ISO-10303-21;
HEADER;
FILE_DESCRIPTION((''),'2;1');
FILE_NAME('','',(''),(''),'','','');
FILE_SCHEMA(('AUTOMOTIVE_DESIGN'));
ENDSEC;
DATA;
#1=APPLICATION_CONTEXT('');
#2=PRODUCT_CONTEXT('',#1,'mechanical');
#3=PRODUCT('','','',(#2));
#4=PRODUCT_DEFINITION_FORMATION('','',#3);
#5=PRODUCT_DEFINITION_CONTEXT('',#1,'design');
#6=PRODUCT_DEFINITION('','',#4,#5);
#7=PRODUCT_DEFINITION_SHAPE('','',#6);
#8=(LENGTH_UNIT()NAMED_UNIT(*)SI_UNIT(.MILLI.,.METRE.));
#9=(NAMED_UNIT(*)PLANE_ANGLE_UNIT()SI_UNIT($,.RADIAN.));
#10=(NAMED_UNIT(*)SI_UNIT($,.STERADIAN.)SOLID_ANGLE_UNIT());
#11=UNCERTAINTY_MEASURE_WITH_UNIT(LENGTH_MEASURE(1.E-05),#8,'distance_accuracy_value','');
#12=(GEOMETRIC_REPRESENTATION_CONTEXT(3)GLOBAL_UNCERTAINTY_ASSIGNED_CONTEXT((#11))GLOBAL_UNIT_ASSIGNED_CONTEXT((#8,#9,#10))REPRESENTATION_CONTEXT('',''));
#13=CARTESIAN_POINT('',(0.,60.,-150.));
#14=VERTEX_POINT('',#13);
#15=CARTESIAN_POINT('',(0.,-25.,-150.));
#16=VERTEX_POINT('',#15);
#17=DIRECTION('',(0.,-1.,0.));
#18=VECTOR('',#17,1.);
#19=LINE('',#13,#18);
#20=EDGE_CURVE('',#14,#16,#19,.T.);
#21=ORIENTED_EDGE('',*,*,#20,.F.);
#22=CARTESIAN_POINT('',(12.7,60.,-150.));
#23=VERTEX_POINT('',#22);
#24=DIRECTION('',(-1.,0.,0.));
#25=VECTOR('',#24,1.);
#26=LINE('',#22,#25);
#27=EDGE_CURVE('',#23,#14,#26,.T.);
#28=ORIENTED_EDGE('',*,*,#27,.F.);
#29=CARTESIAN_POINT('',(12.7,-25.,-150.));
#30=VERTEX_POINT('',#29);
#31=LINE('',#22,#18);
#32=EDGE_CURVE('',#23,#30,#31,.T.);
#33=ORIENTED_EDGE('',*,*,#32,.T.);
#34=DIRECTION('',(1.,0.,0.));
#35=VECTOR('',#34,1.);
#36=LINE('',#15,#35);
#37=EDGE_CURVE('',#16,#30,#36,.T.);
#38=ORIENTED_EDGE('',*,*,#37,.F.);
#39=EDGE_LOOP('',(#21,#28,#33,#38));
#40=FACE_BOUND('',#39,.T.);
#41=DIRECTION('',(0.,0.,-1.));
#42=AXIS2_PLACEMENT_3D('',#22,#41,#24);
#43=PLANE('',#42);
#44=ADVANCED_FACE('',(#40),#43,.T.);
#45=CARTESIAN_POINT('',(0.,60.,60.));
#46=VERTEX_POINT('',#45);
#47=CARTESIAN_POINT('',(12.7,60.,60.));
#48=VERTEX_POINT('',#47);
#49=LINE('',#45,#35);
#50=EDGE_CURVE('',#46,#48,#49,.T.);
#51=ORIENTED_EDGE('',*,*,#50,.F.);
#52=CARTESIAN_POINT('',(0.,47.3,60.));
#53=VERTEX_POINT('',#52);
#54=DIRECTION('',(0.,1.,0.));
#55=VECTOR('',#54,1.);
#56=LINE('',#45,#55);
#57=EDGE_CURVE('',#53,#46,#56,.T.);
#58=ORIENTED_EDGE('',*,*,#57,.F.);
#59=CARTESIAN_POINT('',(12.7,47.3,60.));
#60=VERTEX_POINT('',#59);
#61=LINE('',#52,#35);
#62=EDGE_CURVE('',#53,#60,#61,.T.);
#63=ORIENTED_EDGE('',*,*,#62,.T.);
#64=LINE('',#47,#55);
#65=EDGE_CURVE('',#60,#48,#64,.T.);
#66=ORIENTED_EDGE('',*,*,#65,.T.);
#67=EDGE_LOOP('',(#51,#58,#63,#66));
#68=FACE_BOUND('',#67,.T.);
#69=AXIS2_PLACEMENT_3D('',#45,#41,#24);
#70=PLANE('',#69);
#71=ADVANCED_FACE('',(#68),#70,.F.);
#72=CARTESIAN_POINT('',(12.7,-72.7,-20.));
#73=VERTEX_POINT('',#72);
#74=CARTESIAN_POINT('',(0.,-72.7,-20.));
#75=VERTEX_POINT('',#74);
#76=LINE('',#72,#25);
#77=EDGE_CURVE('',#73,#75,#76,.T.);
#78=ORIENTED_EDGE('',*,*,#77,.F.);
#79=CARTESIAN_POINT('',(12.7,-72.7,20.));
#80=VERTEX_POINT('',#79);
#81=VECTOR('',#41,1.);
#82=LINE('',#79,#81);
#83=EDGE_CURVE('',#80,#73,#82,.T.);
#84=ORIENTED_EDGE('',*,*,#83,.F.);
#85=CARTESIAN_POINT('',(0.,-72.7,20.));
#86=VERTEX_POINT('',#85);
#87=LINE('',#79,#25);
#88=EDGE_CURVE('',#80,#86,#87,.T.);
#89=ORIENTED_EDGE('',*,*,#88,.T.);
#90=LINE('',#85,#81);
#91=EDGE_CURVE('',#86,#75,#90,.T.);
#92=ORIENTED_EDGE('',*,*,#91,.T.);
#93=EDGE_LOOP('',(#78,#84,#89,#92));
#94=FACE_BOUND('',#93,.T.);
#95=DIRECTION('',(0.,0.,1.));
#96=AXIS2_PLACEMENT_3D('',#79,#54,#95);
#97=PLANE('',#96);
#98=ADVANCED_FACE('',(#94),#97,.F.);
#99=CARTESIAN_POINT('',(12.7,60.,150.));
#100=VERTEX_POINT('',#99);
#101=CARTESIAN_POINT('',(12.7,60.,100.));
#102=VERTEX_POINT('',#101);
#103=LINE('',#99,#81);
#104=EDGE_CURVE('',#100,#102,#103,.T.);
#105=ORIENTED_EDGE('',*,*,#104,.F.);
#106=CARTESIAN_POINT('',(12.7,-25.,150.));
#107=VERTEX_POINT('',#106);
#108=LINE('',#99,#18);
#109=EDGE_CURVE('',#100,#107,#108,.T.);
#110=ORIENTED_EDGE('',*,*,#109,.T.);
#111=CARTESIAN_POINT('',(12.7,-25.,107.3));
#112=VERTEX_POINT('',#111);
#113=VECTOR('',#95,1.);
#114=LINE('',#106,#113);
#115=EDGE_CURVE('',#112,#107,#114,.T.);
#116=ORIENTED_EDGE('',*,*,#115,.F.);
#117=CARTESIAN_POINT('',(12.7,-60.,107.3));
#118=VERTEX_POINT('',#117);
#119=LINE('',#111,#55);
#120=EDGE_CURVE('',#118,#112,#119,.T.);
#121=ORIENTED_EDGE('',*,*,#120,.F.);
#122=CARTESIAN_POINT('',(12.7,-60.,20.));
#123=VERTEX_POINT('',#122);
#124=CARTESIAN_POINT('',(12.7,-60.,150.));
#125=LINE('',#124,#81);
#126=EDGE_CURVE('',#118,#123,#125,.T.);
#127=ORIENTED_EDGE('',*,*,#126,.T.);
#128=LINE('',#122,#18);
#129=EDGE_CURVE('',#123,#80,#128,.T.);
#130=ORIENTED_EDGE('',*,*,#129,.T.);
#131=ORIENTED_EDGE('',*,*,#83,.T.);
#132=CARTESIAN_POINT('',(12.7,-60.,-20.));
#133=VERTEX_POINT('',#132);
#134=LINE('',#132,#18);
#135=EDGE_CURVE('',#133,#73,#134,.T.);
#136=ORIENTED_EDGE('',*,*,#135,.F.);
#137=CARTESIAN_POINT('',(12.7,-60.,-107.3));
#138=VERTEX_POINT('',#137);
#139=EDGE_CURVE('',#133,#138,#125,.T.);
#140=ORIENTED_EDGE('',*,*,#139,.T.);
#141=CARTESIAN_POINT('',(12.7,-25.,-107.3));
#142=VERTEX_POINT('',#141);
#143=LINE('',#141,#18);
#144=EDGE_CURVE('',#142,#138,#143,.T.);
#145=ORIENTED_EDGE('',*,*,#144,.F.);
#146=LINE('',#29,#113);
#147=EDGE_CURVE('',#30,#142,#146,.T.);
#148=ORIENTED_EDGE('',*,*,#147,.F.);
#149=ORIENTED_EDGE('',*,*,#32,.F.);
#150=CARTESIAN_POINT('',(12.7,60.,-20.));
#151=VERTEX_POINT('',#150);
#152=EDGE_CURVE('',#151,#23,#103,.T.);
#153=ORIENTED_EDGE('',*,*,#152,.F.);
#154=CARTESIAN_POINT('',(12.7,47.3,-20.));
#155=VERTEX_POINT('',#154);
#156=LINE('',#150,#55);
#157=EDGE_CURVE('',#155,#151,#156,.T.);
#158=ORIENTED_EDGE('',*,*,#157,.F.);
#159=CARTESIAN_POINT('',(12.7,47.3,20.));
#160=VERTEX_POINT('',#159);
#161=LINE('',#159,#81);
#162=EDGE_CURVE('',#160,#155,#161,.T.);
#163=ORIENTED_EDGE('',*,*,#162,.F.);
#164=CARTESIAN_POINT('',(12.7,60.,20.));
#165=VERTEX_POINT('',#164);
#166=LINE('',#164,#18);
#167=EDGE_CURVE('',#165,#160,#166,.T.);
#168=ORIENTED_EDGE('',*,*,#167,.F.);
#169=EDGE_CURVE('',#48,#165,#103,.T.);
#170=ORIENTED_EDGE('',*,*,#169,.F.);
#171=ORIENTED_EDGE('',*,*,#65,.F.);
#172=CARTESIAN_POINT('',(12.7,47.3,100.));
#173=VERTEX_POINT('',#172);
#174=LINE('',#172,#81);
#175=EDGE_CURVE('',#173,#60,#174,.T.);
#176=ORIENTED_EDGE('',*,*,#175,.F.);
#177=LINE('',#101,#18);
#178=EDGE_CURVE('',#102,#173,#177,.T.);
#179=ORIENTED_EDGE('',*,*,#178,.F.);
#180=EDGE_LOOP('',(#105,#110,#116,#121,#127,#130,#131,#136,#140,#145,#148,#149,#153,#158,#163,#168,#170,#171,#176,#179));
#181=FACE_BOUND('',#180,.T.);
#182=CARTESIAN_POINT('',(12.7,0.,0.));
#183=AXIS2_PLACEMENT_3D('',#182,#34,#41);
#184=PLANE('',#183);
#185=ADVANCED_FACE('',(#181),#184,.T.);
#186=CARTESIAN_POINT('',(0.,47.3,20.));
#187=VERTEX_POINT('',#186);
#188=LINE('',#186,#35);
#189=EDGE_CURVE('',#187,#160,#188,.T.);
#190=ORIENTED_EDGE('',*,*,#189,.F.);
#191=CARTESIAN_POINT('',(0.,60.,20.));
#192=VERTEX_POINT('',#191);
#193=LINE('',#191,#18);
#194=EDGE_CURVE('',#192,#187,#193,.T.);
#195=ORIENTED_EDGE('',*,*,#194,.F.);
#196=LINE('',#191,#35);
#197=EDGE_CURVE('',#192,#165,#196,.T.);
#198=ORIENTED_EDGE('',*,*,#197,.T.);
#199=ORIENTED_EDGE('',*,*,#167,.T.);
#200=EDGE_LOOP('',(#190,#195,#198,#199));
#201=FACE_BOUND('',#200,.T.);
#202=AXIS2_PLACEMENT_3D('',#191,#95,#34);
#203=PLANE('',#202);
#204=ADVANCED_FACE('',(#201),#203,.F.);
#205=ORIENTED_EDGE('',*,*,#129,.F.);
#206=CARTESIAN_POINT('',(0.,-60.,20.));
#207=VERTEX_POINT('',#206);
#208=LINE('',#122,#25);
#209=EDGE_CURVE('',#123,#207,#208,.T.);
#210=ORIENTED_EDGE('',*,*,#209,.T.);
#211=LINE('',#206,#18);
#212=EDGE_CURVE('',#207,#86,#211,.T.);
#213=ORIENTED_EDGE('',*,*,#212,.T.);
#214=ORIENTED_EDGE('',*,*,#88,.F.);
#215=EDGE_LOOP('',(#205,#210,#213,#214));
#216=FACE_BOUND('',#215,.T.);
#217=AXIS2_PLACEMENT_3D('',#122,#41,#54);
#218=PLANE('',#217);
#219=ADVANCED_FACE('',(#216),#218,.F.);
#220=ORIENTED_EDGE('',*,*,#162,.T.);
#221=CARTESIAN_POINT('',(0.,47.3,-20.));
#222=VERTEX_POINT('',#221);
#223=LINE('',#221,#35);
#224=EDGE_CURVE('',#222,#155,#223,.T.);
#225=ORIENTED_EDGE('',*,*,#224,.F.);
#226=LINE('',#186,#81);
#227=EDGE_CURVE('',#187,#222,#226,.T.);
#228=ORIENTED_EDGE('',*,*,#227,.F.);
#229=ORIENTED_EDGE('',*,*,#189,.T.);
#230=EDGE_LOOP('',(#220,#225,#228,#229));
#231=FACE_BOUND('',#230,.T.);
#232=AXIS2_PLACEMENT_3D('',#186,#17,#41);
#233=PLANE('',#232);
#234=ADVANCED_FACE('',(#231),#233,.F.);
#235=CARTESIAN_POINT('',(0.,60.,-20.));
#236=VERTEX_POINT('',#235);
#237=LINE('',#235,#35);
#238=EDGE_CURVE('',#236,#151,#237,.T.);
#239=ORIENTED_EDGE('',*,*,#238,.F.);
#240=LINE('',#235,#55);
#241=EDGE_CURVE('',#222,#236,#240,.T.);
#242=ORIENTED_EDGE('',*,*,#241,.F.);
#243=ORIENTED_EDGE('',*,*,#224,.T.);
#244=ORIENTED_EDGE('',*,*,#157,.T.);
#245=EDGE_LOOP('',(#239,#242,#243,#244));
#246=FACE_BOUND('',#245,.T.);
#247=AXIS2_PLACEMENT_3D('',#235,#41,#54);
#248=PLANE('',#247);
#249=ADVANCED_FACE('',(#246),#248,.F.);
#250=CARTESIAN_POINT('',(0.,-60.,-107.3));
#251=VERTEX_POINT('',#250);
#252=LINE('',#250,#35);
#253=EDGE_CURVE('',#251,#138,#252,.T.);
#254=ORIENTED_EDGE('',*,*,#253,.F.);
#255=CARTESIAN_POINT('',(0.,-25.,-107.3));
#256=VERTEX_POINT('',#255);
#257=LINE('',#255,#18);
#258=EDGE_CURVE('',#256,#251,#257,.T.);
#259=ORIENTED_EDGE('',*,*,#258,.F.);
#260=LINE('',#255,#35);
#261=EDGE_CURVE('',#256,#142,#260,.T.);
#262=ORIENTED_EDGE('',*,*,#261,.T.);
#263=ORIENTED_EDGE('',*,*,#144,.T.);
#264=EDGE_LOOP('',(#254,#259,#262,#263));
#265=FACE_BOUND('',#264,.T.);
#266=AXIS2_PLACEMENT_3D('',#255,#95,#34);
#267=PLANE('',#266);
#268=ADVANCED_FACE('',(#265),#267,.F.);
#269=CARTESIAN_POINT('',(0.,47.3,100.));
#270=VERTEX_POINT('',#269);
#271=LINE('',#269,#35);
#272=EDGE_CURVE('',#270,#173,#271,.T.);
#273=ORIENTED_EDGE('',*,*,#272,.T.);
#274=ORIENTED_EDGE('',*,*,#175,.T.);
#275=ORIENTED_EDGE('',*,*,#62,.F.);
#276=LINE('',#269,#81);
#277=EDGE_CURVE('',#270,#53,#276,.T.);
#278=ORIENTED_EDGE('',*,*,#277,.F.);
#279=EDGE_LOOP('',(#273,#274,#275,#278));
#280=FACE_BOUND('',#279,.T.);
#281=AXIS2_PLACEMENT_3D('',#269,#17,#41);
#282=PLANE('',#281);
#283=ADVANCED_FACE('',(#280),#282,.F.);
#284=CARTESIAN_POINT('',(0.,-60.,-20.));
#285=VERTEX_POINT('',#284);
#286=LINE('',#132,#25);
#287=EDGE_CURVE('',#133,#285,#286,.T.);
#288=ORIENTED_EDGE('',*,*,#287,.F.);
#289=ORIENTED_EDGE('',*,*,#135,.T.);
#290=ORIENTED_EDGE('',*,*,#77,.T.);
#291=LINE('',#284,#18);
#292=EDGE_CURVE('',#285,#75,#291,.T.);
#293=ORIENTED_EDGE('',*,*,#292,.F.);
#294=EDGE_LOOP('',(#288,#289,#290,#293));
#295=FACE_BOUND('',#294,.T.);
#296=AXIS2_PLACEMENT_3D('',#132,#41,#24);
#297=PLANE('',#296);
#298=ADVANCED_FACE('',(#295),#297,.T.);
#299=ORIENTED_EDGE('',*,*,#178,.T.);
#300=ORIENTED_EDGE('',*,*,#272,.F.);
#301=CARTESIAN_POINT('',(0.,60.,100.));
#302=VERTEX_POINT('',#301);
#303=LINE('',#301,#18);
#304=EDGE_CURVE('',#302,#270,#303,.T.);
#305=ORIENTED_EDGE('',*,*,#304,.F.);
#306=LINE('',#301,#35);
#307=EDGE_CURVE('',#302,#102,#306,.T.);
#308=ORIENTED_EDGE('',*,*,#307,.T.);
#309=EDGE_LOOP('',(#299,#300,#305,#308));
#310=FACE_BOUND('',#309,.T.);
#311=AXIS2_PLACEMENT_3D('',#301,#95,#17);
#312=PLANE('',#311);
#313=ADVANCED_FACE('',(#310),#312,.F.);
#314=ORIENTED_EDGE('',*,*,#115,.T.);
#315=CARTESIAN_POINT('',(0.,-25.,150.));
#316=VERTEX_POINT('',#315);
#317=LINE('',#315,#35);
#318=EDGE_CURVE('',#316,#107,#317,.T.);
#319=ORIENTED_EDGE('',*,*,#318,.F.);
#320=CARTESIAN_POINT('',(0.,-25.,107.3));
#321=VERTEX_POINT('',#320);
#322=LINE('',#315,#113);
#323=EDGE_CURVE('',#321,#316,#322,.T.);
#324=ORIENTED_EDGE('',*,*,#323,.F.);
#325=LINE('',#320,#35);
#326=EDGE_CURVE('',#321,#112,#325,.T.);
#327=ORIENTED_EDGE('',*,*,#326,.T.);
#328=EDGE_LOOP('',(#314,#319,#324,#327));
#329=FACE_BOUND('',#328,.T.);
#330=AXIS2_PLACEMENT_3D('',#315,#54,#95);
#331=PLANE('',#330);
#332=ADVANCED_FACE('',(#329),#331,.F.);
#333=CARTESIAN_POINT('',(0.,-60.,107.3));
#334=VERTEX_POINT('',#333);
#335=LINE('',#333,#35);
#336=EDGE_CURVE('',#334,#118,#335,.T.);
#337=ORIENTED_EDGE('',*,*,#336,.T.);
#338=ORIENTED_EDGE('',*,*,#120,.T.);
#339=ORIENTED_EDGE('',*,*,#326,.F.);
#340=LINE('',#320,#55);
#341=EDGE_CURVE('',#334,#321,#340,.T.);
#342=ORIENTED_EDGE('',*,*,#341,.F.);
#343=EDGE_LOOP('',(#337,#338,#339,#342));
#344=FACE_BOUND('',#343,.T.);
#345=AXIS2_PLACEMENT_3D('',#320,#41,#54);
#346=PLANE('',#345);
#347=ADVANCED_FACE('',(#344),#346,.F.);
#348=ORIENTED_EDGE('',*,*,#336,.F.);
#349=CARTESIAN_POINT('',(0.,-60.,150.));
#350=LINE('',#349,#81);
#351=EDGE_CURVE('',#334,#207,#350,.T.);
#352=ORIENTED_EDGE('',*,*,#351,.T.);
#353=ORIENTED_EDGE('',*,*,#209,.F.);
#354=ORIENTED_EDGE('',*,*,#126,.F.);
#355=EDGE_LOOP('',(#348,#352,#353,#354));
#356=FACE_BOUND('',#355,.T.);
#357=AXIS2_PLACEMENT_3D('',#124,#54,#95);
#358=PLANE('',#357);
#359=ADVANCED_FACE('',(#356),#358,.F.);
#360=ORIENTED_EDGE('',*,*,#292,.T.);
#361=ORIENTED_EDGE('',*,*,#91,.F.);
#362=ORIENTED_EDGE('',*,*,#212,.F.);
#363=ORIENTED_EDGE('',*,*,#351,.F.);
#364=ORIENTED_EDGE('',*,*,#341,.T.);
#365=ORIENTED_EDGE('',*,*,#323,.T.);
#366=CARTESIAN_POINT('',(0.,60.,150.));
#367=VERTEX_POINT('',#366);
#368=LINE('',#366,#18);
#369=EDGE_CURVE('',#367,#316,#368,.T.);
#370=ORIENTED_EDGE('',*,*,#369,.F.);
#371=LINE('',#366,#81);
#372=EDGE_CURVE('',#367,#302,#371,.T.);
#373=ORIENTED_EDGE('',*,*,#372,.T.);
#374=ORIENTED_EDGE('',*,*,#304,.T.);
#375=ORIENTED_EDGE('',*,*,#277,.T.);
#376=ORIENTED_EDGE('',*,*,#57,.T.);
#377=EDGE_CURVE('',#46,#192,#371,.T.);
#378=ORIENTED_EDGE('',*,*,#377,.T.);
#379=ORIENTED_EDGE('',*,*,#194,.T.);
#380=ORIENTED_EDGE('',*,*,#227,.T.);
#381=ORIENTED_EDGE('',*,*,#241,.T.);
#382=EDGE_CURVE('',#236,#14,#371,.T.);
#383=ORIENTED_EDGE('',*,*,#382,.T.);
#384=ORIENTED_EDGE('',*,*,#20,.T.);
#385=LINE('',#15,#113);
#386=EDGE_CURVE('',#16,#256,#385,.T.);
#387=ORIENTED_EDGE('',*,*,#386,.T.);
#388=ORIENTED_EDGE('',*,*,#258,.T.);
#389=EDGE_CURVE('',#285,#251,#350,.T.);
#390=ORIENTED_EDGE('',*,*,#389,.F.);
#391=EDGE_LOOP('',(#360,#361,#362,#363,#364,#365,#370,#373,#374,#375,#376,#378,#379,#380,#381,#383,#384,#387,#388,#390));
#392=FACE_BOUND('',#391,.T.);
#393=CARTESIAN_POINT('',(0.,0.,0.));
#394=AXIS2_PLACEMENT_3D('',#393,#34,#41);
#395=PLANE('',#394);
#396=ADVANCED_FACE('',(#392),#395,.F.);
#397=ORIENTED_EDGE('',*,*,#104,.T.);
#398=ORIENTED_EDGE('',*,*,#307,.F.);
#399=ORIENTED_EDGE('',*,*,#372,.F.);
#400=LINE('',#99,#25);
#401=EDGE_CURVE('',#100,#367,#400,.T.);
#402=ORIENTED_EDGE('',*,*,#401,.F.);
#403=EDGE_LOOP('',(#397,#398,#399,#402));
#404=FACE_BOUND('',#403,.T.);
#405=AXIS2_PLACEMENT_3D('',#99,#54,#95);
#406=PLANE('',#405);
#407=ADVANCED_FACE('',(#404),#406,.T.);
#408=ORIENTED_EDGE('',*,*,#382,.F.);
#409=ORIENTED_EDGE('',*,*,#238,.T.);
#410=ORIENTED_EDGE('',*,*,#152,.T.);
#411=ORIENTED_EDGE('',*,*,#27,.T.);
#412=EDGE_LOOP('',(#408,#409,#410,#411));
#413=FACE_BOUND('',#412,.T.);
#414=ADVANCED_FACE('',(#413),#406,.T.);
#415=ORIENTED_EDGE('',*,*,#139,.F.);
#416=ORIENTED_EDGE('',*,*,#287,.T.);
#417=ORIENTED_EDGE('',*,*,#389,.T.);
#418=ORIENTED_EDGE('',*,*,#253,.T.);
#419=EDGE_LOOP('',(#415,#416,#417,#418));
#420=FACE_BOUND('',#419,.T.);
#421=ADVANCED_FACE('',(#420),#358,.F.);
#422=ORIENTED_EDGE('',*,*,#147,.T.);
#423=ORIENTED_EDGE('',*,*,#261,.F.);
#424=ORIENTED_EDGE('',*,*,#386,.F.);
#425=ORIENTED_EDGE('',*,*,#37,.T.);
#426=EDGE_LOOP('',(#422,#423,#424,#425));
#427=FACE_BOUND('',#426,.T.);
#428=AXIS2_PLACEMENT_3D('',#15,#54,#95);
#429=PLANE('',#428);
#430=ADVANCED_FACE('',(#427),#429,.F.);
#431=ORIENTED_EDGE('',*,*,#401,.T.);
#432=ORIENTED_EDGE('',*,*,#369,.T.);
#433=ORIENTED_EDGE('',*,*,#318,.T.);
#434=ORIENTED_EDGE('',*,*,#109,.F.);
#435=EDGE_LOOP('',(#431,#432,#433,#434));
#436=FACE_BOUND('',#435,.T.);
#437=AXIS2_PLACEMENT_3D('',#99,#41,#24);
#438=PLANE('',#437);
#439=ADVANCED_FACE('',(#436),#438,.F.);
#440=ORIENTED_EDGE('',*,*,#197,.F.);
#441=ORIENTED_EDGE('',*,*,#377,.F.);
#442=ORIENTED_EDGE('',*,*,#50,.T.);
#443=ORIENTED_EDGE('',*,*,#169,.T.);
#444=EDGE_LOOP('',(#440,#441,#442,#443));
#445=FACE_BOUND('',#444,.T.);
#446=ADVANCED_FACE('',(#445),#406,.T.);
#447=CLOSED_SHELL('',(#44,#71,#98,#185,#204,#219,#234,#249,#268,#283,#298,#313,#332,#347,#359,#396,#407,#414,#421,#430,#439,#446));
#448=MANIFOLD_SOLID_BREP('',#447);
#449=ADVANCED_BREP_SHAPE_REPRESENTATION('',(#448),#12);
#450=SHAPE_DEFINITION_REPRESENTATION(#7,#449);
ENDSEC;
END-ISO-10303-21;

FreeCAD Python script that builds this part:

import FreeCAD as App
import Part
import Sketcher
Q = App.Units.Quantity


def add_polygon(sketch, points):
    """Adds a closed chain of lines whose ends are joined by coincident constraints."""
    first, n = sketch.GeometryCount, len(points)
    for a, b in zip(points, points[1:] + points[:1]):
        sketch.addGeometry(Part.LineSegment(App.Vector(*a, 0), App.Vector(*b, 0)), False)
    for i in range(n):
        sketch.addConstraint(Sketcher.Constraint("Coincident", first + i, 2, first + (i + 1) % n, 1))

doc = App.newDocument("Part")
body = doc.addObject("PartDesign::Body", "Body")

sketch1 = doc.addObject("Sketcher::SketchObject", "Sketch")
body.addObject(sketch1)
sketch1.AttachmentSupport = (doc.YZ_Plane, [""])
sketch1.MapMode = "FlatFace"
add_polygon(sketch1, [(60, 150), (-60, 150), (-60, 20), (-72.7, 20), (-72.7, -20), (-60, -20), (-60, -150), (60, -150)])
sketch1.addConstraint([
    Sketcher.Constraint("Horizontal", 0),
    Sketcher.Constraint("Vertical", 1),
    Sketcher.Constraint("Horizontal", 2),
    Sketcher.Constraint("Vertical", 3),
    Sketcher.Constraint("Horizontal", 4),
    Sketcher.Constraint("Vertical", 5),
    Sketcher.Constraint("Horizontal", 6),
    Sketcher.Constraint("Vertical", 7),
    Sketcher.Constraint("Symmetric", 0, 2, 6, 2, -1, 1),
    Sketcher.Constraint("Symmetric", 1, 2, 4, 2, -1),
    Sketcher.Constraint("DistanceX", 0, 2, 0, 1, Q("120 mm")),
    Sketcher.Constraint("DistanceY", 1, 2, 1, 1, Q("130 mm")),
    Sketcher.Constraint("DistanceY", 3, 2, 3, 1, Q("40 mm")),
    Sketcher.Constraint("DistanceX", 2, 2, 2, 1, Q("12.7 mm")),
])
pad1 = doc.addObject("PartDesign::Pad", "Pad")
body.addObject(pad1)
pad1.Profile = sketch1
pad1.Length = 12.7

sketch2 = doc.addObject("Sketcher::SketchObject", "Sketch001")
body.addObject(sketch2)
sketch2.AttachmentSupport = (doc.YZ_Plane, [""])
sketch2.MapMode = "FlatFace"
sketch2.AttachmentOffset = App.Placement(App.Vector(0, 0, 12.7), App.Rotation())
add_polygon(sketch2, [(-25, 150), (-60, 150), (-60, 107.3), (-25, 107.3)])
add_polygon(sketch2, [(-25, -107.3), (-60, -107.3), (-60, -150), (-25, -150)])
sketch2.addConstraint([
    Sketcher.Constraint("Horizontal", 0),
    Sketcher.Constraint("Vertical", 1),
    Sketcher.Constraint("Horizontal", 2),
    Sketcher.Constraint("Vertical", 3),
    Sketcher.Constraint("Horizontal", 4),
    Sketcher.Constraint("Vertical", 5),
    Sketcher.Constraint("Horizontal", 6),
    Sketcher.Constraint("Vertical", 7),
    Sketcher.Constraint("Symmetric", 1, 2, 4, 2, -1),
    Sketcher.Constraint("Symmetric", 3, 2, 6, 2, -1),
    Sketcher.Constraint("DistanceX", 0, 2, 0, 1, Q("35 mm")),
    Sketcher.Constraint("DistanceY", 1, 2, 1, 1, Q("42.7 mm")),
    Sketcher.Constraint("DistanceX", 0, 2, -1, 1, Q("60 mm")),
    Sketcher.Constraint("DistanceY", -1, 1, 0, 2, Q("150 mm")),
])
pocket1 = doc.addObject("PartDesign::Pocket", "Pocket")
body.addObject(pocket1)
pocket1.Profile = sketch2
pocket1.Length = 12.7

sketch3 = doc.addObject("Sketcher::SketchObject", "Sketch002")
body.addObject(sketch3)
sketch3.AttachmentSupport = (doc.YZ_Plane, [""])
sketch3.MapMode = "FlatFace"
sketch3.AttachmentOffset = App.Placement(App.Vector(0, 0, 12.7), App.Rotation())
add_polygon(sketch3, [(60, 20), (47.3, 20), (47.3, -20), (60, -20)])
sketch3.addConstraint([
    Sketcher.Constraint("Horizontal", 0),
    Sketcher.Constraint("Vertical", 1),
    Sketcher.Constraint("Horizontal", 2),
    Sketcher.Constraint("Vertical", 3),
    Sketcher.Constraint("DistanceY", 1, 2, 1, 1, Q("40 mm")),
    Sketcher.Constraint("DistanceX", 0, 2, 0, 1, Q("12.7 mm")),
    Sketcher.Constraint("DistanceY", -1, 1, 0, 2, Q("20 mm")),
    Sketcher.Constraint("DistanceX", -1, 1, 2, 2, Q("60 mm")),
])
pocket2 = doc.addObject("PartDesign::Pocket", "Pocket001")
body.addObject(pocket2)
pocket2.Profile = sketch3
pocket2.Length = 12.7

sketch4 = doc.addObject("Sketcher::SketchObject", "Sketch003")
body.addObject(sketch4)
sketch4.AttachmentSupport = (doc.YZ_Plane, [""])
sketch4.MapMode = "FlatFace"
sketch4.AttachmentOffset = App.Placement(App.Vector(0, 0, 12.7), App.Rotation())
add_polygon(sketch4, [(60, 100), (47.3, 100), (47.3, 60), (60, 60)])
sketch4.addConstraint([
    Sketcher.Constraint("Horizontal", 0),
    Sketcher.Constraint("Vertical", 1),
    Sketcher.Constraint("Horizontal", 2),
    Sketcher.Constraint("Vertical", 3),
    Sketcher.Constraint("DistanceY", 1, 2, 1, 1, Q("40 mm")),
    Sketcher.Constraint("DistanceX", 0, 2, 0, 1, Q("12.7 mm")),
    Sketcher.Constraint("DistanceY", -1, 1, 0, 2, Q("100 mm")),
    Sketcher.Constraint("DistanceX", -1, 1, 2, 2, Q("60 mm")),
])
pocket3 = doc.addObject("PartDesign::Pocket", "Pocket002")
body.addObject(pocket3)
pocket3.Profile = sketch4
pocket3.Length = 12.7

doc.recompute()
